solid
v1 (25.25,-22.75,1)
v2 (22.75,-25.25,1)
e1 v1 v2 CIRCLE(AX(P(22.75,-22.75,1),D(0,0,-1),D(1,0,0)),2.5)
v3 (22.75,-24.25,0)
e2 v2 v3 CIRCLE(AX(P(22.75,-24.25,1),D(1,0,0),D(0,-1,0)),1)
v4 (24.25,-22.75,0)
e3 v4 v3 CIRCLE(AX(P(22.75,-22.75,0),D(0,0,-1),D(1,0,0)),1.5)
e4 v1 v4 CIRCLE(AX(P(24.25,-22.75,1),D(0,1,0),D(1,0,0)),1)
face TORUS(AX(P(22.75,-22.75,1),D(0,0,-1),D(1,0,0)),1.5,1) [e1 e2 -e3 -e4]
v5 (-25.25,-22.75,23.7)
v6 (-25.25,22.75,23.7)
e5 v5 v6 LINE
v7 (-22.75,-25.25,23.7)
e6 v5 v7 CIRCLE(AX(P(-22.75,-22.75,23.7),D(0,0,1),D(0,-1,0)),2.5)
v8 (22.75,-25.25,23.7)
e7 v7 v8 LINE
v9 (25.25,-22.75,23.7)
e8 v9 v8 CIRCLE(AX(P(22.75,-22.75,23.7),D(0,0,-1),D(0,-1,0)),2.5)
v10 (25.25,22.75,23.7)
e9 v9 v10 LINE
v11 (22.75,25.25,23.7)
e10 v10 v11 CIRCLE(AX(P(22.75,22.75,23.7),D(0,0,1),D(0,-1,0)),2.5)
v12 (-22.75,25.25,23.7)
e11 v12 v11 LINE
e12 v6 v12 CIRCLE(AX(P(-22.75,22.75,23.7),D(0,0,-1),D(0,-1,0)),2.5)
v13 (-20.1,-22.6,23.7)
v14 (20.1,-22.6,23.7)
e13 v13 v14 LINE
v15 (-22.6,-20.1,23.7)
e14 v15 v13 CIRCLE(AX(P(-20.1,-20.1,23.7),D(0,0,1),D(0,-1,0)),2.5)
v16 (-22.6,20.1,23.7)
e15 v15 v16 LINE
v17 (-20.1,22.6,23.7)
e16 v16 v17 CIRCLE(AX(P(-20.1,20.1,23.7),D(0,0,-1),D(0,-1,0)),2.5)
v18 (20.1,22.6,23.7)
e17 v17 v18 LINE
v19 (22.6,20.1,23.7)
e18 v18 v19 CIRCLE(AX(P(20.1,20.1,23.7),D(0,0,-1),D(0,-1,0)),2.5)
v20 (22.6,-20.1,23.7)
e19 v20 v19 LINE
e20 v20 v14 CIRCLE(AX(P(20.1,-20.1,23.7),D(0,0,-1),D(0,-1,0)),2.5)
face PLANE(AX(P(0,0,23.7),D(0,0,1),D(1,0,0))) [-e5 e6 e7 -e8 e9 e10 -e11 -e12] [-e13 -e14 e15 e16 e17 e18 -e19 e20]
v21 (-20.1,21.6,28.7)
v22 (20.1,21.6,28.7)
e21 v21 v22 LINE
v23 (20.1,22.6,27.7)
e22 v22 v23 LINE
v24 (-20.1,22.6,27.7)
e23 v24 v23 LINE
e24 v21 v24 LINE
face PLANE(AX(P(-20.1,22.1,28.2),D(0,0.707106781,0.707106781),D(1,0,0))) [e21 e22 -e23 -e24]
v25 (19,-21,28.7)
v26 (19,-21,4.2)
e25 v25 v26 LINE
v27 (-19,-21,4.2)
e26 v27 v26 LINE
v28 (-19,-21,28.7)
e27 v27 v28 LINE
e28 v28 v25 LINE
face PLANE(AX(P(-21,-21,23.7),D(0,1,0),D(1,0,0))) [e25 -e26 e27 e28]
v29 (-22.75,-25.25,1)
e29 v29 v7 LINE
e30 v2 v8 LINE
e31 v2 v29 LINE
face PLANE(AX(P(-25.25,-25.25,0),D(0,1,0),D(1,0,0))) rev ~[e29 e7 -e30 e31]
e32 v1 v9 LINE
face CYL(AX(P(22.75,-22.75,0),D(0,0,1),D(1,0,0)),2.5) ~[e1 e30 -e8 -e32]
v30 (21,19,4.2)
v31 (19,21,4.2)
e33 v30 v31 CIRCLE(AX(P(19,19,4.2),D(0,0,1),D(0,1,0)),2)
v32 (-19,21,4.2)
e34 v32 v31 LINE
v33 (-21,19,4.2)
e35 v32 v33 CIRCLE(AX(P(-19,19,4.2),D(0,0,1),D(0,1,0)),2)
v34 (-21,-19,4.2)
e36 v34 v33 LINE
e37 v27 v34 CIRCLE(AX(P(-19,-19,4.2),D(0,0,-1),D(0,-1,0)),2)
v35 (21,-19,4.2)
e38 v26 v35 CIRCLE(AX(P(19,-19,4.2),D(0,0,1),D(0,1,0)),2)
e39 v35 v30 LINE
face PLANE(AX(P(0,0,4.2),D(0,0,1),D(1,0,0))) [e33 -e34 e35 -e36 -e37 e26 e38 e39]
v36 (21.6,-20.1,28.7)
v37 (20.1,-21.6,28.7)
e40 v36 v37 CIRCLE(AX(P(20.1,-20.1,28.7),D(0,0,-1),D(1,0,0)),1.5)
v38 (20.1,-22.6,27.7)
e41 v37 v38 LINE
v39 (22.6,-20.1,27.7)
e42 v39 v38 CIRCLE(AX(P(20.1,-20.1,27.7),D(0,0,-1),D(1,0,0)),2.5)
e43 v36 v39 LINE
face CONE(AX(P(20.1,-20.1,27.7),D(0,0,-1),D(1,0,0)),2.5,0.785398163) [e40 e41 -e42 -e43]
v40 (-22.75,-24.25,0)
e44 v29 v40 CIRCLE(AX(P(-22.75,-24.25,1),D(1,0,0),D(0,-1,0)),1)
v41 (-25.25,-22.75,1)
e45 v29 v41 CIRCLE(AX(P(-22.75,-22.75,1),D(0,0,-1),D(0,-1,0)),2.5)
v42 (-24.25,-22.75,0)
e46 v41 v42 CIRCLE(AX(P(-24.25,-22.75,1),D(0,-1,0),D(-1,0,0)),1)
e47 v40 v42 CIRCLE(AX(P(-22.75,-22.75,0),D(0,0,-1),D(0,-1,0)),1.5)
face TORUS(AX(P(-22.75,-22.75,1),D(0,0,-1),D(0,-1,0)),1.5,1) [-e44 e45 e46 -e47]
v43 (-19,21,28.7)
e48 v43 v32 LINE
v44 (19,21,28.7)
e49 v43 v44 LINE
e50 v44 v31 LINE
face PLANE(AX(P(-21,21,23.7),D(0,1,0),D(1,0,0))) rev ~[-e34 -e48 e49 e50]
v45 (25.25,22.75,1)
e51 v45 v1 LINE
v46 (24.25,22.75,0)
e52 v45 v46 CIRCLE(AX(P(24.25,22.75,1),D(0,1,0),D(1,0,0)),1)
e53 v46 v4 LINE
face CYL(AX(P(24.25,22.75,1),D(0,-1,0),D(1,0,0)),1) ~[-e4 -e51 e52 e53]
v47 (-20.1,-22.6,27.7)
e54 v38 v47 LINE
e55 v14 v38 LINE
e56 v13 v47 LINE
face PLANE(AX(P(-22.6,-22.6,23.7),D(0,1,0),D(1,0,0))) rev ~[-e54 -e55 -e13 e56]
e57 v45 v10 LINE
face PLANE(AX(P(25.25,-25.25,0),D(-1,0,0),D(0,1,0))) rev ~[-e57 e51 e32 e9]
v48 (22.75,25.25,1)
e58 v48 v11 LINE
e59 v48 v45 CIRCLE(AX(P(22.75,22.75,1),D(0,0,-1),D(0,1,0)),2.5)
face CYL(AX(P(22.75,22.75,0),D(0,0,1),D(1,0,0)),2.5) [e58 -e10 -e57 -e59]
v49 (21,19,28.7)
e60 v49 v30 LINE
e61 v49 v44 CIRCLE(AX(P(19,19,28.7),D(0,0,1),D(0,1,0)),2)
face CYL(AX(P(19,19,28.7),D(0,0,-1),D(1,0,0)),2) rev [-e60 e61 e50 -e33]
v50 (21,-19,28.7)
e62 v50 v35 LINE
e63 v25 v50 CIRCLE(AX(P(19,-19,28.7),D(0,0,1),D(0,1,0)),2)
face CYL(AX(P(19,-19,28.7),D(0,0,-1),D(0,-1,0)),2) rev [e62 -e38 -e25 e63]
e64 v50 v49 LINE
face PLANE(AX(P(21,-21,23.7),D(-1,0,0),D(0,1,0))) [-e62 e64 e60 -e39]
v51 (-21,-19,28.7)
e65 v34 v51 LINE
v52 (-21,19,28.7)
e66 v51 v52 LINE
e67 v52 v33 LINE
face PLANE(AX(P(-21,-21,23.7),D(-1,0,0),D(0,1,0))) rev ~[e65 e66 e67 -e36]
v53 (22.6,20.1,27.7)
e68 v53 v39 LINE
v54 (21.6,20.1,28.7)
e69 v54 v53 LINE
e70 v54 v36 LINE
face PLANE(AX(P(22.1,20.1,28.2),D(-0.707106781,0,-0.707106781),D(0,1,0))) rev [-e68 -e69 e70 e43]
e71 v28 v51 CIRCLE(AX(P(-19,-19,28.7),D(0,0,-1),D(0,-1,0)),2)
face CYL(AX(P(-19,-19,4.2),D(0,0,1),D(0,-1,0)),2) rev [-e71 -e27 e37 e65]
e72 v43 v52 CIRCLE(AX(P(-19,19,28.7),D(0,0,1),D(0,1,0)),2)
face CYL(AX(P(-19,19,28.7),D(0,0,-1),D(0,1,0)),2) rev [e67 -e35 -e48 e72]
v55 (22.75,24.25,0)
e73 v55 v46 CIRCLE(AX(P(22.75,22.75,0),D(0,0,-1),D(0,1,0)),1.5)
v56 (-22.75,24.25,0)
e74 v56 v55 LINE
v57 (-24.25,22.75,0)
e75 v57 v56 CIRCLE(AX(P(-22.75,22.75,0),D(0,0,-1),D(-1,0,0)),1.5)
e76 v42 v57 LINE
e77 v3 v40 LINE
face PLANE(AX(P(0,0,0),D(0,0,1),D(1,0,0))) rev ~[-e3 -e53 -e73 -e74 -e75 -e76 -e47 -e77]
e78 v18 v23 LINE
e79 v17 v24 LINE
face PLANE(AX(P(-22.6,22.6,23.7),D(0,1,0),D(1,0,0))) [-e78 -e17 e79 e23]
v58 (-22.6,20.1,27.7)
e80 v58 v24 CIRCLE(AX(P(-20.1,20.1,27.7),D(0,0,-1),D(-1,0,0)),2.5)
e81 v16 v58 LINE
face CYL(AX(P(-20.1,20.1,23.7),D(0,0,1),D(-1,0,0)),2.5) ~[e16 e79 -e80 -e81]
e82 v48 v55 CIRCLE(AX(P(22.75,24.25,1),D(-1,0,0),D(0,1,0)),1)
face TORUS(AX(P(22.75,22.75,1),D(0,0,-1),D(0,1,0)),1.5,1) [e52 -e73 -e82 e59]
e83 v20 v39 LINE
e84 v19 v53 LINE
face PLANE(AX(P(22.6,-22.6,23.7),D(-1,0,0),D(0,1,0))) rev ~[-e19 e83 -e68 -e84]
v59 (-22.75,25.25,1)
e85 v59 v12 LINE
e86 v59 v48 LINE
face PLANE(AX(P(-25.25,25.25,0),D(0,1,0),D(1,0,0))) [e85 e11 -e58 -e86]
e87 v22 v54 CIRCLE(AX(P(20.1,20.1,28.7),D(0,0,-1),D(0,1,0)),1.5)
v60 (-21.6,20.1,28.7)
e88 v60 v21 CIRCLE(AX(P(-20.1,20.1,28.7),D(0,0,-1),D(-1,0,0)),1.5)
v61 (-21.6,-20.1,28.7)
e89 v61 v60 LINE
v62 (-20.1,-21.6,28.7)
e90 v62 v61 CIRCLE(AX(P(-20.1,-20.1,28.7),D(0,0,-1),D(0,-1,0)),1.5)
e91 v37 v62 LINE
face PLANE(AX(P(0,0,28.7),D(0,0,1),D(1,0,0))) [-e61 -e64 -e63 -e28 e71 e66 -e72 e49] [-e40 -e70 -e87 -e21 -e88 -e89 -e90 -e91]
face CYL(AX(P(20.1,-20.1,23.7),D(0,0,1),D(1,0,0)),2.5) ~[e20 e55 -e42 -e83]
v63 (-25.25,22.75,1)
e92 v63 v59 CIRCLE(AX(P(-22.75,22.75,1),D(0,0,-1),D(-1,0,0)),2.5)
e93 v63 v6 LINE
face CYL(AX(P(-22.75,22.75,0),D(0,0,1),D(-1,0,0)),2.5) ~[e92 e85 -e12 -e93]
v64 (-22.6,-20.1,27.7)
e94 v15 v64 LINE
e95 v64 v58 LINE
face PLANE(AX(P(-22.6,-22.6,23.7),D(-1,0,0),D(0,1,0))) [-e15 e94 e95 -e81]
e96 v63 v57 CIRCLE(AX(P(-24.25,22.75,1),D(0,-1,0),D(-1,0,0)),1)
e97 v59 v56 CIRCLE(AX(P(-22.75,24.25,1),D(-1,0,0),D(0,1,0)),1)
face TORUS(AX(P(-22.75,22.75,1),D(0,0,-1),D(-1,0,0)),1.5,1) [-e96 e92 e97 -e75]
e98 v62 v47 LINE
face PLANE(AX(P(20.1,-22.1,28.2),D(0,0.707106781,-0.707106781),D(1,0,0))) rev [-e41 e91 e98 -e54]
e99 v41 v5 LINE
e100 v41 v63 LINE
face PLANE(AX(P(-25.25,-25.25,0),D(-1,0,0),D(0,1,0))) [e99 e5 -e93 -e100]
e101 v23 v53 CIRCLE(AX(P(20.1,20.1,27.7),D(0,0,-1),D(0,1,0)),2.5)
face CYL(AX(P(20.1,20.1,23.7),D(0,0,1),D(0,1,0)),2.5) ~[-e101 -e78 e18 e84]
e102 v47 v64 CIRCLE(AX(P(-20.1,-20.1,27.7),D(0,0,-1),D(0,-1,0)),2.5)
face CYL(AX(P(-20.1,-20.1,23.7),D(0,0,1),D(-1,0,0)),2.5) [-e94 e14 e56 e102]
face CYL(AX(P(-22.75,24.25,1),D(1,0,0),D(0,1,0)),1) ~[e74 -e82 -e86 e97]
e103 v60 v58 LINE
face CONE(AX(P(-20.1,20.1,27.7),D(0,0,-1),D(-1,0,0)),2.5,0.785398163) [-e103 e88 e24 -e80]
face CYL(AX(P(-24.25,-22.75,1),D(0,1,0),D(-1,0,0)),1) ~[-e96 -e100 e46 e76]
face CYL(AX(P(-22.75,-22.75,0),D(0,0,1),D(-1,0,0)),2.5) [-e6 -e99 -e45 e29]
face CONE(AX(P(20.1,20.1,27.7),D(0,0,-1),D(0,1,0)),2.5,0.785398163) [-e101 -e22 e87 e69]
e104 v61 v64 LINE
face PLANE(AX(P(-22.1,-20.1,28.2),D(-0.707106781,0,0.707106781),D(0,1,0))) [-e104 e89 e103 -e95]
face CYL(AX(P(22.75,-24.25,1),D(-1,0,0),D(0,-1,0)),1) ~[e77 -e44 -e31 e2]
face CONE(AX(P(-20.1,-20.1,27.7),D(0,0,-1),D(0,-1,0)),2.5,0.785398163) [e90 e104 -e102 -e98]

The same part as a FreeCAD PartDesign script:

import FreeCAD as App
import Part
import Sketcher


def edges_at(feature, points):
    """Names of the edges that pass closest to the given points."""
    edges = feature.Shape.Edges
    near = lambda p: min(range(len(edges)), key=lambda i: edges[i].distToShape(Part.Vertex(*p))[0])
    return sorted({f"Edge{near(p) + 1}" for p in points})

doc = App.newDocument("Part")
body = doc.addObject("PartDesign::Body", "Body")

# Sketch on XY plane
sketch1 = doc.addObject("Sketcher::SketchObject", "Sketch")
body.addObject(sketch1)
sketch1.AttachmentSupport = (doc.XY_Plane, [""])
sketch1.MapMode = "FlatFace"
sketch1.addGeometry([
    Part.LineSegment(App.Vector(-25, 25, 0), App.Vector(-25, -25, 0)),
    Part.LineSegment(App.Vector(-25, -25, 0), App.Vector(25, -25, 0)),
    Part.LineSegment(App.Vector(25, -25, 0), App.Vector(25, 25, 0)),
    Part.LineSegment(App.Vector(25, 25, 0), App.Vector(-25, 25, 0)),
], False)
sketch1.addConstraint([
    Sketcher.Constraint("Coincident", 0, 2, 1, 1),
    Sketcher.Constraint("Coincident", 1, 2, 2, 1),
    Sketcher.Constraint("Coincident", 2, 2, 3, 1),
    Sketcher.Constraint("Coincident", 3, 2, 0, 1),
    Sketcher.Constraint("Vertical", 0),
    Sketcher.Constraint("Horizontal", 1),
    Sketcher.Constraint("Vertical", 2),
    Sketcher.Constraint("Horizontal", 3),
    Sketcher.Constraint("Symmetric", 0, 2, 2, 2, -1, 1),
    Sketcher.Constraint("Equal", 3, 0),
    Sketcher.Constraint("DistanceX", 1, 1, 1, 2, 50.5),
])
pad1 = doc.addObject("PartDesign::Pad", "Pad")
body.addObject(pad1)
pad1.Profile = sketch1
pad1.Length = 23.7

# Sketch on XY plane
sketch2 = doc.addObject("Sketcher::SketchObject", "Sketch001")
body.addObject(sketch2)
sketch2.AttachmentSupport = (doc.XY_Plane, [""])
sketch2.MapMode = "FlatFace"
sketch2.AttachmentOffset = App.Placement(App.Vector(0, 0, 23.7), App.Rotation())
sketch2.addGeometry([
    Part.LineSegment(App.Vector(-23, 23, 0), App.Vector(-23, -23, 0)),
    Part.LineSegment(App.Vector(-23, -23, 0), App.Vector(23, -23, 0)),
    Part.LineSegment(App.Vector(23, -23, 0), App.Vector(23, 23, 0)),
    Part.LineSegment(App.Vector(23, 23, 0), App.Vector(-23, 23, 0)),
], False)
sketch2.addConstraint([
    Sketcher.Constraint("Coincident", 0, 2, 1, 1),
    Sketcher.Constraint("Coincident", 1, 2, 2, 1),
    Sketcher.Constraint("Coincident", 2, 2, 3, 1),
    Sketcher.Constraint("Coincident", 3, 2, 0, 1),
    Sketcher.Constraint("Vertical", 0),
    Sketcher.Constraint("Horizontal", 1),
    Sketcher.Constraint("Vertical", 2),
    Sketcher.Constraint("Horizontal", 3),
    Sketcher.Constraint("Symmetric", 0, 2, 2, 2, -1, 1),
    Sketcher.Constraint("Equal", 3, 0),
    Sketcher.Constraint("DistanceX", 1, 1, 1, 2, 45.2),
])
pad2 = doc.addObject("PartDesign::Pad", "Pad001")
body.addObject(pad2)
pad2.Profile = sketch2
pad2.Length = 5

# Sketch on XY plane
sketch3 = doc.addObject("Sketcher::SketchObject", "Sketch002")
body.addObject(sketch3)
sketch3.AttachmentSupport = (doc.XY_Plane, [""])
sketch3.MapMode = "FlatFace"
sketch3.AttachmentOffset = App.Placement(App.Vector(0, 0, 23.7), App.Rotation())
sketch3.addGeometry([
    Part.LineSegment(App.Vector(-21, 21, 0), App.Vector(-21, -21, 0)),
    Part.LineSegment(App.Vector(-21, -21, 0), App.Vector(21, -21, 0)),
    Part.LineSegment(App.Vector(21, -21, 0), App.Vector(21, 21, 0)),
    Part.LineSegment(App.Vector(21, 21, 0), App.Vector(-21, 21, 0)),
], False)
sketch3.addConstraint([
    Sketcher.Constraint("Coincident", 0, 2, 1, 1),
    Sketcher.Constraint("Coincident", 1, 2, 2, 1),
    Sketcher.Constraint("Coincident", 2, 2, 3, 1),
    Sketcher.Constraint("Coincident", 3, 2, 0, 1),
    Sketcher.Constraint("Vertical", 0),
    Sketcher.Constraint("Horizontal", 1),
    Sketcher.Constraint("Vertical", 2),
    Sketcher.Constraint("Horizontal", 3),
    Sketcher.Constraint("Symmetric", 0, 2, 2, 2, -1, 1),
    Sketcher.Constraint("Equal", 3, 0),
    Sketcher.Constraint("DistanceX", 1, 1, 1, 2, 42.0),
])
pocket1 = doc.addObject("PartDesign::Pocket", "Pocket")
body.addObject(pocket1)
pocket1.Profile = sketch3
pocket1.Type = "TwoLengths"
pocket1.Length = 5
pocket1.Length2 = 19.5
pocket1.Reversed = True
doc.recompute()

fillet = doc.addObject("PartDesign::Fillet", "Fillet")
body.addObject(fillet)
fillet.Base = (pocket1, edges_at(pocket1, [
    (-25.25, 25.25, 11.85),
    (-25.25, -25.25, 11.85),
    (25.25, -25.25, 11.85),
    (25.25, 25.25, 11.85),
    (-22.6, 22.6, 26.2),
    (-22.6, -22.6, 26.2),
    (22.6, -22.6, 26.2),
    (22.6, 22.6, 26.2),
]))
fillet.Radius = 2.5
doc.recompute()

fillet2 = doc.addObject("PartDesign::Fillet", "Fillet001")
body.addObject(fillet2)
fillet2.Base = (fillet, edges_at(fillet, [
    (-21, 21, 16.45),
    (21, 21, 16.45),
    (21, -21, 16.45),
    (-21, -21, 16.45),
]))
fillet2.Radius = 2
doc.recompute()

chamfer = doc.addObject("PartDesign::Chamfer", "Chamfer")
body.addObject(chamfer)
chamfer.Base = (fillet2, edges_at(fillet2, [(-22.6, 0, 28.7)]))
chamfer.Size = 1
doc.recompute()

fillet3 = doc.addObject("PartDesign::Fillet", "Fillet002")
body.addObject(fillet3)
fillet3.Base = (chamfer, edges_at(chamfer, [(0, 25.25, 0)]))
fillet3.Radius = 1

doc.recompute()
